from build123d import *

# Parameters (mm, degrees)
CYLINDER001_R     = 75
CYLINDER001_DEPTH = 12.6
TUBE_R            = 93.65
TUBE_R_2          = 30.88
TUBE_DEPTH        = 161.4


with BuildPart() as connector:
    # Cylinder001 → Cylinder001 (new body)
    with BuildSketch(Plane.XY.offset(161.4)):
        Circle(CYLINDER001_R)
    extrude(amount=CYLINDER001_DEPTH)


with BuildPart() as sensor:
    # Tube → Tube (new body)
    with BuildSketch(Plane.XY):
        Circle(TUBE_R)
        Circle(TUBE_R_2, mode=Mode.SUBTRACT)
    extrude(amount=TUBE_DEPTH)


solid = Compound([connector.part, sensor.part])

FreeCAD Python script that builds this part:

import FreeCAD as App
import Part
import Sketcher
from FreeCAD import Vector
Q = App.Units.Quantity

doc = App.newDocument("Part")
params = doc.addObject("Spreadsheet::Sheet", "Params")
for row, (alias, value) in enumerate([
    ("sketch1_diameter", "150 mm"),
    ("pad1_length", "12.6 mm"),
    ("sketch2_diameter", "187.3 mm"),
    ("sketch2_diameter2", "61.76 mm"),
    ("pad2_length", "161.4 mm"),
], start=1):
    params.set(f"A{row}", alias)
    params.set(f"B{row}", "=" + value)
    params.setAlias(f"B{row}", alias)

body = doc.addObject("PartDesign::Body", "Body")

# Sketch on XY plane
sketch1 = body.newObject("Sketcher::SketchObject", "Sketch")
sketch1.AttachmentSupport = (doc.getObject("XY_Plane"), [""])
sketch1.MapMode = "FlatFace"
sketch1.AttachmentOffset = App.Placement(Vector(0, 0, 161.4), App.Rotation())
sketch1.addGeometry(Part.Circle(Vector(0, 0, 0), Vector(0, 0, 1), 75), False)
sketch1.addConstraint([
    Sketcher.Constraint("Coincident", 0, 3, -1, 1),
    Sketcher.Constraint("Diameter", 0, Q("150 mm")),
])
sketch1.setExpression("Constraints[1]", "Params.sketch1_diameter")
pad1 = body.newObject("PartDesign::Pad", "Pad")
pad1.Profile = sketch1
pad1.setExpression("Length", "Params.pad1_length")
body2 = doc.addObject("PartDesign::Body", "Body001")

# Sketch on XY plane
sketch2 = body2.newObject("Sketcher::SketchObject", "Sketch001")
sketch2.AttachmentSupport = (doc.getObject("XY_Plane001"), [""])
sketch2.MapMode = "FlatFace"
sketch2.addGeometry([
    Part.Circle(Vector(0, 0, 0), Vector(0, 0, 1), 94),
    Part.Circle(Vector(0, 0, 0), Vector(0, 0, 1), 31),
], False)
sketch2.addConstraint([
    Sketcher.Constraint("Coincident", 0, 3, -1, 1),
    Sketcher.Constraint("Coincident", 1, 3, -1, 1),
    Sketcher.Constraint("Diameter", 0, Q("187.3 mm")),
    Sketcher.Constraint("Diameter", 1, Q("61.76 mm")),
])
sketch2.setExpression("Constraints[2]", "Params.sketch2_diameter")
sketch2.setExpression("Constraints[3]", "Params.sketch2_diameter2")
pad2 = body2.newObject("PartDesign::Pad", "Pad001")
pad2.Profile = sketch2
pad2.setExpression("Length", "Params.pad2_length")

doc.recompute()
